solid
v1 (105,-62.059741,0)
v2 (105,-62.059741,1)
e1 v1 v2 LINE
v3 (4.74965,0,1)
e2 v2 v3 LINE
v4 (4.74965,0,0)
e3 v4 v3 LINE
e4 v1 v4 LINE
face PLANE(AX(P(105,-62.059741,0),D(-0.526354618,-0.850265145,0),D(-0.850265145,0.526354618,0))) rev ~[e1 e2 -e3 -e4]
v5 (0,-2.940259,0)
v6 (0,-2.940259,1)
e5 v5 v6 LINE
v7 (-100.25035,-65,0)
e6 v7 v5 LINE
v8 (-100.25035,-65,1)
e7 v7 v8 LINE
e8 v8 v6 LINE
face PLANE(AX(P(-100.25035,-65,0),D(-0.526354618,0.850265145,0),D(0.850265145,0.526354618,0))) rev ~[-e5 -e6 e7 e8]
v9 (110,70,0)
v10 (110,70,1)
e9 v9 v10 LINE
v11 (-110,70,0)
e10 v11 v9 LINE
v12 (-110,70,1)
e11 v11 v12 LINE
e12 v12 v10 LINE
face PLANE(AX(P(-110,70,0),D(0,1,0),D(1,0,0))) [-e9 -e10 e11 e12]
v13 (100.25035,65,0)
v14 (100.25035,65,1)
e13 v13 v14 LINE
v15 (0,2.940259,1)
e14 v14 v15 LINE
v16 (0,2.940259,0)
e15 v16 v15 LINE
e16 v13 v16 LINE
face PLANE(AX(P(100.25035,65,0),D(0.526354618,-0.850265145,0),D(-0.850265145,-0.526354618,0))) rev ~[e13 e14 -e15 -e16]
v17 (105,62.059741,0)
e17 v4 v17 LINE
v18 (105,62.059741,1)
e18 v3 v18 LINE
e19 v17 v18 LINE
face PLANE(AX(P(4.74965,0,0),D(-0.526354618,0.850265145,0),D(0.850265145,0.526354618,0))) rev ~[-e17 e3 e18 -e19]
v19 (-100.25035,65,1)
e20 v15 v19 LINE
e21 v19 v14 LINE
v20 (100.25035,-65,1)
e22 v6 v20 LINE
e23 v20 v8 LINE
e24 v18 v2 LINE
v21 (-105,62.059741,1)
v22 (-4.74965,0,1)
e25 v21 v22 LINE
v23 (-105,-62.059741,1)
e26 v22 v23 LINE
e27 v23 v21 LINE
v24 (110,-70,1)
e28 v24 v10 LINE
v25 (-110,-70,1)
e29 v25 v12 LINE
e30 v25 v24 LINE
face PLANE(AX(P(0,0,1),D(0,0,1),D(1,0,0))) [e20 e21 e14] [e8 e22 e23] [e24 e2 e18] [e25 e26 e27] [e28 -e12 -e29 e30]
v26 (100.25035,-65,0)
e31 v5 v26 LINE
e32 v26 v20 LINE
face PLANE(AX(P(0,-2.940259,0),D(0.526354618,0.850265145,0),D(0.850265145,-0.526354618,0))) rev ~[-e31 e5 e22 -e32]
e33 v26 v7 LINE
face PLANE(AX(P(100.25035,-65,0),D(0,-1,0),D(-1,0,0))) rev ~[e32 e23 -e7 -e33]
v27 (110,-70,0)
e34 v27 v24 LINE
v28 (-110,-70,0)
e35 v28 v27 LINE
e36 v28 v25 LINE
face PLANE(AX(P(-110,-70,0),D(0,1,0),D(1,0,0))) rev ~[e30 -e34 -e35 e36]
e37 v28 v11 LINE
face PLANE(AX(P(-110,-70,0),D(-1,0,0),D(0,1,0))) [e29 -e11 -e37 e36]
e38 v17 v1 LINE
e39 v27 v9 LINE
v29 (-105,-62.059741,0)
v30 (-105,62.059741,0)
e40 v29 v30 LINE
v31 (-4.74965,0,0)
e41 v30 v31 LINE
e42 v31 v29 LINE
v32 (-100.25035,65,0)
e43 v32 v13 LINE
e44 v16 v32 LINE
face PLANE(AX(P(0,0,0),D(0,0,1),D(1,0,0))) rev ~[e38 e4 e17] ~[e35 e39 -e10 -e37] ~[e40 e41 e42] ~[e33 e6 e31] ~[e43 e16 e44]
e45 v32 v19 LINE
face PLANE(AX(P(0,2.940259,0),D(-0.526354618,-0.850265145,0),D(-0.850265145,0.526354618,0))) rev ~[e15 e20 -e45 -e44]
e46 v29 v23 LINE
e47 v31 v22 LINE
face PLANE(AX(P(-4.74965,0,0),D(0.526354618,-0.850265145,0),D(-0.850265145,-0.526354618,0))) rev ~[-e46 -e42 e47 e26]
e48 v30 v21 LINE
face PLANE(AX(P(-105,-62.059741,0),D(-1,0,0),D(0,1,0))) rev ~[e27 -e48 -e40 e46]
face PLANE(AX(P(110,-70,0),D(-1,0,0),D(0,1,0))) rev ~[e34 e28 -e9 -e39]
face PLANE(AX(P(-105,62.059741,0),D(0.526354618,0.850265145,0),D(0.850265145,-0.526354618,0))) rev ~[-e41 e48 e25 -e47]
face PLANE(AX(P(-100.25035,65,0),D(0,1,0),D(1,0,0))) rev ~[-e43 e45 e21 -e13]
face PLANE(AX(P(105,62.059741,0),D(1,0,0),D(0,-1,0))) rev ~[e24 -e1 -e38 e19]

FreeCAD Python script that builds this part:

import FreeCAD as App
import Part
import Sketcher

V = App.Vector
Q = App.Units.Quantity


def add_polygon(sketch, points):
    """Adds a closed chain of lines whose ends are joined by coincident constraints."""
    first, n = sketch.GeometryCount, len(points)
    for a, b in zip(points, points[1:] + points[:1]):
        sketch.addGeometry(Part.LineSegment(App.Vector(*a, 0), App.Vector(*b, 0)), False)
    for i in range(n):
        sketch.addConstraint(Sketcher.Constraint("Coincident", first + i, 2, first + (i + 1) % n, 1))

doc = App.newDocument("Part")
body = doc.addObject("PartDesign::Body", "Body")

sketch1 = doc.addObject("Sketcher::SketchObject", "Sketch")
body.addObject(sketch1)
sketch1.AttachmentSupport = (doc.XY_Plane, [""])
sketch1.MapMode = "FlatFace"
add_polygon(sketch1, [(-110, 70), (-110, -70), (110, -70), (110, 70)])
add_polygon(sketch1, [(-100.25035, -65), (0, -2.940259), (100.25035, -65)])
add_polygon(sketch1, [(-105, 62.059741), (-4.74965, 0), (-105, -62.059741)])
add_polygon(sketch1, [(4.74965, 0), (105, 62.059741), (105, -62.059741)])
add_polygon(sketch1, [(0, 2.940259), (-100.25035, 65), (100.25035, 65)])
sketch1.addConstraint(Sketcher.Constraint("Vertical", 0))
sketch1.addConstraint(Sketcher.Constraint("Horizontal", 1))
sketch1.addConstraint(Sketcher.Constraint("Vertical", 2))
sketch1.addConstraint(Sketcher.Constraint("Horizontal", 3))
sketch1.addConstraint(Sketcher.Constraint("Horizontal", 6))
sketch1.addConstraint(Sketcher.Constraint("Vertical", 9))
sketch1.addConstraint(Sketcher.Constraint("Vertical", 11))
sketch1.addConstraint(Sketcher.Constraint("Horizontal", 14))
sketch1.addConstraint(Sketcher.Constraint("Symmetric", 0, 2, 2, 2, -1, 1))
sketch1.addConstraint(Sketcher.Constraint("Symmetric", 8, 2, 10, 2, -1, 1))
sketch1.addConstraint(Sketcher.Constraint("Symmetric", 7, 2, 12, 2, -1, 1))
sketch1.addConstraint(Sketcher.Constraint("Symmetric", 5, 2, 13, 2, -1, 1))
sketch1.addConstraint(Sketcher.Constraint("Symmetric", 4, 2, 15, 2, -1, 1))
sketch1.addConstraint(Sketcher.Constraint("PointOnObject", 4, 2, -2))
sketch1.addConstraint(Sketcher.Constraint("PointOnObject", 7, 2, -1))
sketch1.addConstraint(Sketcher.Constraint("Parallel", 5, 7))
sketch1.addConstraint(Sketcher.Constraint("Parallel", 4, 8))
sketch1.addConstraint(Sketcher.Constraint("Parallel", 7, 12))
sketch1.addConstraint(Sketcher.Constraint("Parallel", 10, 15))
sketch1.addConstraint(Sketcher.Constraint("Horizontal", 9, 2, 10, 2))
sketch1.addConstraint(Sketcher.Constraint("Equal", 5, 7))
sketch1.addConstraint(Sketcher.Constraint("DistanceX", 1, 1, 1, 2, Q("220 mm")))
sketch1.addConstraint(Sketcher.Constraint("DistanceY", 0, 2, 0, 1, Q("140 mm")))
sketch1.addConstraint(Sketcher.Constraint("DistanceY", 5, 2, -1, 1, Q("65 mm")))
sketch1.addConstraint(Sketcher.Constraint("DistanceX", 8, 2, -1, 1, Q("105 mm")))
sketch1.addConstraint(Sketcher.Constraint("DistanceX", 6, 2, 6, 1, Q("200.5007 mm")))
sketch1.addConstraint(Sketcher.Constraint("Distance", 4, Q("117.90481 mm")))
pad1 = doc.addObject("PartDesign::Pad", "Pad")
body.addObject(pad1)
pad1.Profile = sketch1
pad1.Length = 1

doc.recompute()
